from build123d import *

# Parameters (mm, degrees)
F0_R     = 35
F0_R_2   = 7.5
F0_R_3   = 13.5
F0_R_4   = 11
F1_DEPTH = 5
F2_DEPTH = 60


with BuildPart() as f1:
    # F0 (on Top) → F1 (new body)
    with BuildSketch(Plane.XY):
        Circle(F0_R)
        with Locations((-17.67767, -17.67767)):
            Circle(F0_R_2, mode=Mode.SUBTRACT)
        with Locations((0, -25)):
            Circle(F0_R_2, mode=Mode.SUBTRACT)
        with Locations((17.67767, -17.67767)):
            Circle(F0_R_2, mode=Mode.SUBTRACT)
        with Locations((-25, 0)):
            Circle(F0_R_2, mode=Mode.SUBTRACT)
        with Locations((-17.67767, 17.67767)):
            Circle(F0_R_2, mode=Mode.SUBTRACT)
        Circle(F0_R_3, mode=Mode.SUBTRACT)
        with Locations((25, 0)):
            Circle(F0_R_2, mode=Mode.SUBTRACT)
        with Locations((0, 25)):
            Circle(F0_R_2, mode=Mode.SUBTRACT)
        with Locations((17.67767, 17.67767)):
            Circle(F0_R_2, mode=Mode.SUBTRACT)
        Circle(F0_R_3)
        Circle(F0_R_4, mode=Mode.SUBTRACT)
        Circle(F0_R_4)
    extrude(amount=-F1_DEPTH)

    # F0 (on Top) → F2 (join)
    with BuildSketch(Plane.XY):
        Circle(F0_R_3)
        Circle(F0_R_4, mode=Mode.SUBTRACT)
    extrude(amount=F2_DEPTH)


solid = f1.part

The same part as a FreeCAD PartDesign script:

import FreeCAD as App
import Part
import Sketcher
from FreeCAD import Vector

doc = App.newDocument("Part")
body = doc.addObject("PartDesign::Body", "Body")

# Sketch on XY plane
sketch1 = body.newObject("Sketcher::SketchObject", "Sketch")
sketch1.AttachmentSupport = (doc.getObject("XY_Plane"), [""])
sketch1.MapMode = "FlatFace"
sketch1.addGeometry(Part.Circle(Vector(0, 0, 0), Vector(0, 0, 1), 35), False)
sketch1.addGeometry(Part.Circle(Vector(-17.67767, -17.67767, 0), Vector(0, 0, 1), 7.5), False)
sketch1.addGeometry(Part.Circle(Vector(0, -25, 0), Vector(0, 0, 1), 7.5), False)
sketch1.addGeometry(Part.Circle(Vector(17.67767, -17.67767, 0), Vector(0, 0, 1), 7.5), False)
sketch1.addGeometry(Part.Circle(Vector(-25, 0, 0), Vector(0, 0, 1), 7.5), False)
sketch1.addGeometry(Part.Circle(Vector(-17.67767, 17.67767, 0), Vector(0, 0, 1), 7.5), False)
sketch1.addGeometry(Part.Circle(Vector(25, 0, 0), Vector(0, 0, 1), 7.5), False)
sketch1.addGeometry(Part.Circle(Vector(0, 25, 0), Vector(0, 0, 1), 7.5), False)
sketch1.addGeometry(Part.Circle(Vector(17.67767, 17.67767, 0), Vector(0, 0, 1), 7.5), False)
sketch1.addConstraint(Sketcher.Constraint("Coincident", 0, 3, -1, 1))
sketch1.addConstraint(Sketcher.Constraint("Equal", 1, 2))
sketch1.addConstraint(Sketcher.Constraint("Equal", 2, 3))
sketch1.addConstraint(Sketcher.Constraint("Equal", 3, 4))
sketch1.addConstraint(Sketcher.Constraint("Equal", 4, 5))
sketch1.addConstraint(Sketcher.Constraint("Equal", 5, 6))
sketch1.addConstraint(Sketcher.Constraint("Equal", 6, 7))
sketch1.addConstraint(Sketcher.Constraint("Equal", 7, 8))
sketch1.addConstraint(Sketcher.Constraint("Symmetric", 3, 3, 5, 3, -1, 1))
sketch1.addConstraint(Sketcher.Constraint("Symmetric", 4, 3, 6, 3, -1, 1))
sketch1.addConstraint(Sketcher.Constraint("Symmetric", 2, 3, 7, 3, -1, 1))
sketch1.addConstraint(Sketcher.Constraint("Symmetric", 1, 3, 8, 3, -1, 1))
sketch1.addConstraint(Sketcher.Constraint("Symmetric", 1, 3, 3, 3, -2))
sketch1.addConstraint(Sketcher.Constraint("PointOnObject", 2, 3, -2))
sketch1.addConstraint(Sketcher.Constraint("PointOnObject", 4, 3, -1))
sketch1.addConstraint(Sketcher.Constraint("Diameter", 0, 70.0))
sketch1.addConstraint(Sketcher.Constraint("Diameter", 1, 15.0))
sketch1.addConstraint(Sketcher.Constraint("DistanceY", 2, 3, -1, 1, 25.0))
sketch1.addConstraint(Sketcher.Constraint("DistanceX", 4, 3, -1, 1, 25.0))
sketch1.addConstraint(Sketcher.Constraint("DistanceX", 1, 3, -1, 1, 17.67767))
sketch1.addConstraint(Sketcher.Constraint("DistanceY", 1, 3, -1, 1, 17.67767))
pad1 = body.newObject("PartDesign::Pad", "Pad")
pad1.Profile = sketch1
pad1.Length = 5
pad1.Reversed = True

# Sketch on XY plane
sketch2 = body.newObject("Sketcher::SketchObject", "Sketch001")
sketch2.AttachmentSupport = (doc.getObject("XY_Plane"), [""])
sketch2.MapMode = "FlatFace"
sketch2.addGeometry(Part.Circle(Vector(0, 0, 0), Vector(0, 0, 1), 13.5), False)
sketch2.addGeometry(Part.Circle(Vector(0, 0, 0), Vector(0, 0, 1), 11), False)
sketch2.addConstraint(Sketcher.Constraint("Coincident", 0, 3, -1, 1))
sketch2.addConstraint(Sketcher.Constraint("Coincident", 1, 3, -1, 1))
sketch2.addConstraint(Sketcher.Constraint("Diameter", 0, 27.0))
sketch2.addConstraint(Sketcher.Constraint("Diameter", 1, 22.0))
pad2 = body.newObject("PartDesign::Pad", "Pad001")
pad2.Profile = sketch2
pad2.Length = 60

doc.recompute()
